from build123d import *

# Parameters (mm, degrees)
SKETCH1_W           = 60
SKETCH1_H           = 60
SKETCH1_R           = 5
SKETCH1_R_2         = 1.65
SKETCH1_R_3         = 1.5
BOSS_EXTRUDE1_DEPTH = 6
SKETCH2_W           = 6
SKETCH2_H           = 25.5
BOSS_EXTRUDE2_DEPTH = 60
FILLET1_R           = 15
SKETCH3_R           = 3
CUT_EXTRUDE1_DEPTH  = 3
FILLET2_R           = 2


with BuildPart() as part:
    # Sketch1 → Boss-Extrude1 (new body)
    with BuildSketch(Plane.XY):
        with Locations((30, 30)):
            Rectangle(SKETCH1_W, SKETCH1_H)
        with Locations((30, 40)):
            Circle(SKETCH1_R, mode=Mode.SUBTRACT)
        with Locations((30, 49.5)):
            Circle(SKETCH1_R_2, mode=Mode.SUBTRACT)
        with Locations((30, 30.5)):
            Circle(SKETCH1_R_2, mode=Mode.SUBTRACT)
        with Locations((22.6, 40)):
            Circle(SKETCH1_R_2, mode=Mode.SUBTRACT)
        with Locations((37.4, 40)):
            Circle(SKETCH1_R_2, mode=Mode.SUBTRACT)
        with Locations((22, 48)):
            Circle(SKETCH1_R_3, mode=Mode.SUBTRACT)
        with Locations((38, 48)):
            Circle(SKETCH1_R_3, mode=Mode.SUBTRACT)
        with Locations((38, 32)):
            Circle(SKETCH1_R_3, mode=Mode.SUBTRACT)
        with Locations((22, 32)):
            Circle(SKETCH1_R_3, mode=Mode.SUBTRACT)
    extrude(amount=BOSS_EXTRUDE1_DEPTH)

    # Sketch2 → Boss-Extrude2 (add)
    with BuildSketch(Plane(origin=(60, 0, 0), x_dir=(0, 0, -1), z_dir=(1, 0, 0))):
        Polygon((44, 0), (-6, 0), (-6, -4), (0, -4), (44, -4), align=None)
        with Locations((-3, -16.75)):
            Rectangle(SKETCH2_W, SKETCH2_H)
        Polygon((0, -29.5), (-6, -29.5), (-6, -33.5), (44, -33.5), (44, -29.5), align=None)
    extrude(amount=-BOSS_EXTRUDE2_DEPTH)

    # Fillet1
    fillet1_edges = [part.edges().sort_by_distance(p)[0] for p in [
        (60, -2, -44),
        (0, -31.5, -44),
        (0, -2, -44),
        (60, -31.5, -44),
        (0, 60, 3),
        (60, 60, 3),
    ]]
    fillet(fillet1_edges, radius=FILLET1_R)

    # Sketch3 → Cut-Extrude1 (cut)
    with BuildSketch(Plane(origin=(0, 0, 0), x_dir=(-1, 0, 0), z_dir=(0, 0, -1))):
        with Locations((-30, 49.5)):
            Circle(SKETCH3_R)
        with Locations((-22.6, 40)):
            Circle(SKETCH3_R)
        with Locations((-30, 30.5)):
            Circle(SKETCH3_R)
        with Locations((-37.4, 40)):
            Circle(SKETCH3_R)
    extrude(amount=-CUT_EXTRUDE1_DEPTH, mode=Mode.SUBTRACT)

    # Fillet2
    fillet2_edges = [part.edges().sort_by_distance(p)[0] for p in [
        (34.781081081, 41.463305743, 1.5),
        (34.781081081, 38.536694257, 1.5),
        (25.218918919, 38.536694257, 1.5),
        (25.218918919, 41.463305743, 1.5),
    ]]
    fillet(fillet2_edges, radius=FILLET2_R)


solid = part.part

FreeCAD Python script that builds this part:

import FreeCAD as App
import Part
import Sketcher
from FreeCAD import Vector


def edges_at(feature, points):
    """Names of the edges that pass closest to the given points."""
    edges = feature.Shape.Edges
    near = lambda p: min(range(len(edges)), key=lambda i: edges[i].distToShape(Part.Vertex(*p))[0])
    return sorted({f"Edge{near(p) + 1}" for p in points})

doc = App.newDocument("Part")
body = doc.addObject("PartDesign::Body", "Body")

sketch1 = body.newObject("Sketcher::SketchObject", "Sketch")
sketch1.AttachmentSupport = (doc.getObject("XY_Plane"), [""])
sketch1.MapMode = "FlatFace"
sketch1.addGeometry([
    Part.LineSegment(Vector(0, 60, 0), Vector(0, 0, 0)),
    Part.LineSegment(Vector(0, 0, 0), Vector(60, 0, 0)),
    Part.LineSegment(Vector(60, 0, 0), Vector(60, 60, 0)),
    Part.LineSegment(Vector(60, 60, 0), Vector(0, 60, 0)),
    Part.Circle(Vector(22, 32, 0), Vector(0, 0, 1), 1.5),
    Part.Circle(Vector(30, 30.5, 0), Vector(0, 0, 1), 1.6),
    Part.Circle(Vector(38, 32, 0), Vector(0, 0, 1), 1.5),
    Part.Circle(Vector(22.6, 40, 0), Vector(0, 0, 1), 1.6),
    Part.Circle(Vector(22, 48, 0), Vector(0, 0, 1), 1.5),
    Part.Circle(Vector(30, 40, 0), Vector(0, 0, 1), 5),
    Part.Circle(Vector(37.4, 40, 0), Vector(0, 0, 1), 1.6),
    Part.Circle(Vector(30, 49.5, 0), Vector(0, 0, 1), 1.6),
    Part.Circle(Vector(38, 48, 0), Vector(0, 0, 1), 1.5),
], False)
sketch1.addConstraint([
    Sketcher.Constraint("Coincident", 0, 2, 1, 1),
    Sketcher.Constraint("Coincident", 1, 2, 2, 1),
    Sketcher.Constraint("Coincident", 2, 2, 3, 1),
    Sketcher.Constraint("Coincident", 3, 2, 0, 1),
    Sketcher.Constraint("Vertical", 0),
    Sketcher.Constraint("Horizontal", 1),
    Sketcher.Constraint("Vertical", 2),
    Sketcher.Constraint("Horizontal", 3),
    Sketcher.Constraint("Coincident", 0, 2, -1, 1),
    Sketcher.Constraint("Equal", 4, 6),
    Sketcher.Constraint("Equal", 5, 7),
    Sketcher.Constraint("Equal", 6, 8),
    Sketcher.Constraint("Equal", 7, 10),
    Sketcher.Constraint("Equal", 10, 11),
    Sketcher.Constraint("Equal", 8, 12),
    Sketcher.Constraint("Horizontal", 4, 3, 6, 3),
    Sketcher.Constraint("Horizontal", 7, 3, 9, 3),
    Sketcher.Constraint("Horizontal", 9, 3, 10, 3),
    Sketcher.Constraint("Horizontal", 8, 3, 12, 3),
    Sketcher.Constraint("Vertical", 4, 3, 8, 3),
    Sketcher.Constraint("Vertical", 5, 3, 9, 3),
    Sketcher.Constraint("Vertical", 9, 3, 11, 3),
    Sketcher.Constraint("Vertical", 6, 3, 12, 3),
    Sketcher.Constraint("Equal", 3, 0),
    Sketcher.Constraint("Diameter", 4, 3.0),
    Sketcher.Constraint("Diameter", 9, 10.0),
    Sketcher.Constraint("Diameter", 5, 3.3),
    Sketcher.Constraint("DistanceX", 1, 1, 1, 2, 60.0),
    Sketcher.Constraint("DistanceX", -1, 1, 4, 3, 22.0),
    Sketcher.Constraint("DistanceY", -1, 1, 4, 3, 32.0),
    Sketcher.Constraint("DistanceX", -1, 1, 5, 3, 30.0),
    Sketcher.Constraint("DistanceX", -1, 1, 6, 3, 38.0),
    Sketcher.Constraint("DistanceY", -1, 1, 7, 3, 40.0),
    Sketcher.Constraint("DistanceY", -1, 1, 8, 3, 48.0),
    Sketcher.Constraint("DistanceY", 5, 3, 11, 3, 19.0),
    Sketcher.Constraint("DistanceY", -1, 1, 5, 3, 30.5),
    Sketcher.Constraint("DistanceX", -1, 1, 7, 3, 22.6),
    Sketcher.Constraint("DistanceX", -1, 1, 10, 3, 37.4),
])
pad1 = body.newObject("PartDesign::Pad", "Pad")
pad1.Profile = sketch1
pad1.Length = 6

sketch2 = body.newObject("Sketcher::SketchObject", "Sketch001")
sketch2.AttachmentSupport = (doc.getObject("YZ_Plane"), [""])
sketch2.MapMode = "FlatFace"
sketch2.AttachmentOffset = App.Placement(Vector(0, 0, 60), App.Rotation())
sketch2.addGeometry([
    Part.LineSegment(Vector(0, -44, 0), Vector(0, 6, 0)),
    Part.LineSegment(Vector(0, 6, 0), Vector(-33.5, 6, 0)),
    Part.LineSegment(Vector(-33.5, 6, 0), Vector(-33.5, -44, 0)),
    Part.LineSegment(Vector(-33.5, -44, 0), Vector(-29.5, -44, 0)),
    Part.LineSegment(Vector(-29.5, -44, 0), Vector(-29.5, 0, 0)),
    Part.LineSegment(Vector(-29.5, 0, 0), Vector(-4, 0, 0)),
    Part.LineSegment(Vector(-4, 0, 0), Vector(-4, -44, 0)),
    Part.LineSegment(Vector(-4, -44, 0), Vector(0, -44, 0)),
], False)
sketch2.addConstraint([
    Sketcher.Constraint("Coincident", 0, 2, 1, 1),
    Sketcher.Constraint("Coincident", 1, 2, 2, 1),
    Sketcher.Constraint("Coincident", 2, 2, 3, 1),
    Sketcher.Constraint("Coincident", 3, 2, 4, 1),
    Sketcher.Constraint("Coincident", 4, 2, 5, 1),
    Sketcher.Constraint("Coincident", 5, 2, 6, 1),
    Sketcher.Constraint("Coincident", 6, 2, 7, 1),
    Sketcher.Constraint("Coincident", 7, 2, 0, 1),
    Sketcher.Constraint("Vertical", 0),
    Sketcher.Constraint("Horizontal", 1),
    Sketcher.Constraint("Vertical", 2),
    Sketcher.Constraint("Horizontal", 3),
    Sketcher.Constraint("Vertical", 4),
    Sketcher.Constraint("Horizontal", 5),
    Sketcher.Constraint("Vertical", 6),
    Sketcher.Constraint("Horizontal", 7),
    Sketcher.Constraint("PointOnObject", 0, 2, -2),
    Sketcher.Constraint("PointOnObject", 4, 2, -1),
    Sketcher.Constraint("Horizontal", 3, 2, 6, 2),
    Sketcher.Constraint("Equal", 3, 7),
    Sketcher.Constraint("DistanceX", 3, 1, 3, 2, 4.0),
    Sketcher.Constraint("DistanceY", 0, 1, 0, 2, 50.0),
    Sketcher.Constraint("DistanceY", 4, 1, 4, 2, 44.0),
    Sketcher.Constraint("DistanceX", 1, 2, 1, 1, 33.5),
])
pad2 = body.newObject("PartDesign::Pad", "Pad001")
pad2.Profile = sketch2
pad2.Length = 60
pad2.Reversed = True
doc.recompute()

fillet = body.newObject("PartDesign::Fillet", "Fillet")
fillet.Base = (pad2, edges_at(pad2, [
    (60, -2, -44),
    (0, -31.5, -44),
    (0, -2, -44),
    (60, -31.5, -44),
    (0, 60, 3),
    (60, 60, 3),
]))
fillet.Radius = 15

sketch3 = body.newObject("Sketcher::SketchObject", "Sketch002")
sketch3.AttachmentSupport = (doc.getObject("XY_Plane"), [""])
sketch3.MapMode = "FlatFace"
sketch3.addGeometry([
    Part.Circle(Vector(30, 49.5, 0), Vector(0, 0, 1), 3),
    Part.Circle(Vector(22.6, 40, 0), Vector(0, 0, 1), 3),
    Part.Circle(Vector(30, 30.5, 0), Vector(0, 0, 1), 3),
    Part.Circle(Vector(37.4, 40, 0), Vector(0, 0, 1), 3),
], False)
sketch3.addConstraint([
    Sketcher.Constraint("Equal", 0, 1),
    Sketcher.Constraint("Equal", 1, 2),
    Sketcher.Constraint("Equal", 2, 3),
    Sketcher.Constraint("Horizontal", 1, 3, 3, 3),
    Sketcher.Constraint("Vertical", 0, 3, 2, 3),
    Sketcher.Constraint("Diameter", 0, 6.0),
    Sketcher.Constraint("DistanceX", -1, 1, 0, 3, 30.0),
    Sketcher.Constraint("DistanceY", -1, 1, 1, 3, 40.0),
    Sketcher.Constraint("DistanceY", 2, 3, 0, 3, 19.0),
    Sketcher.Constraint("DistanceY", -1, 1, 0, 3, 49.5),
    Sketcher.Constraint("DistanceX", -1, 1, 1, 3, 22.6),
    Sketcher.Constraint("DistanceX", -1, 1, 3, 3, 37.4),
])
pocket1 = body.newObject("PartDesign::Pocket", "Pocket")
pocket1.Profile = sketch3
pocket1.Length = 3
pocket1.Reversed = True
doc.recompute()

fillet2 = body.newObject("PartDesign::Fillet", "Fillet001")
fillet2.Base = (pocket1, edges_at(pocket1, [
    (34.781, 41.463, 1.5),
    (34.781, 38.537, 1.5),
    (25.219, 38.537, 1.5),
    (25.219, 41.463, 1.5),
]))
fillet2.Radius = 2

doc.recompute()
